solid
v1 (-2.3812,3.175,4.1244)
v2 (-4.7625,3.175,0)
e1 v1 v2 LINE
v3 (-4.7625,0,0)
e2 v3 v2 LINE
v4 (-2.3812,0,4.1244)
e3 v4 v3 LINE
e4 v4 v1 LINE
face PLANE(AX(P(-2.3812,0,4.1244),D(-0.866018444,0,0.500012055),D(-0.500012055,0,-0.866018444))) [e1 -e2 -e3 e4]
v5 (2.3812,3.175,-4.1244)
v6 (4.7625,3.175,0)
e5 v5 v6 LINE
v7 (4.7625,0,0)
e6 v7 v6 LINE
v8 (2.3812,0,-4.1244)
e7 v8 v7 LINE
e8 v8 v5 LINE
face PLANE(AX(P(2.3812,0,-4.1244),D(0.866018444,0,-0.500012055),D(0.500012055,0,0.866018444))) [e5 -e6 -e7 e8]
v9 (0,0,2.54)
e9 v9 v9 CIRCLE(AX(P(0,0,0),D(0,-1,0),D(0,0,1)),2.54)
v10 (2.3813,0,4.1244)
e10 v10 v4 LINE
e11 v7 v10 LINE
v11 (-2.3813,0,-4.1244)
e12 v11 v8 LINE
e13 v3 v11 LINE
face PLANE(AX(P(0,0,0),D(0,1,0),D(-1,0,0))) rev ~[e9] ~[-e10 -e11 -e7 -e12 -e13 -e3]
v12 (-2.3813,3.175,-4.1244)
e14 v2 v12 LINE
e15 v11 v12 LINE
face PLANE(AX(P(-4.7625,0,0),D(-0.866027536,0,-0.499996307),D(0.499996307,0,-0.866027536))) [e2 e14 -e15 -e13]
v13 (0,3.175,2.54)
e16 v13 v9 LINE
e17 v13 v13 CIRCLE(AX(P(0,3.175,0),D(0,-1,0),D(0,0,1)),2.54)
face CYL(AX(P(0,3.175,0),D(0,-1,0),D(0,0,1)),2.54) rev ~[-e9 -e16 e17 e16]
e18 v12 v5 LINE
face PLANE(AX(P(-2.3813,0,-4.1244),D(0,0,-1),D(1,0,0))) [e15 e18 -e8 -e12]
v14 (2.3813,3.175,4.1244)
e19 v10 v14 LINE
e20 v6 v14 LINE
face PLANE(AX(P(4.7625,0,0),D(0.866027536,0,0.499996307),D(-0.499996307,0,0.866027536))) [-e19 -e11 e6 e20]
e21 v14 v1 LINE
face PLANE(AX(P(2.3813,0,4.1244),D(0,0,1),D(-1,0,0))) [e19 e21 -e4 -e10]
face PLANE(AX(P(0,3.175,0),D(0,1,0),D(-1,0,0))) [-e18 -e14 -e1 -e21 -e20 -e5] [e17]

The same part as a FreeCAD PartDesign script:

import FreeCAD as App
import Part
import Sketcher

V = App.Vector
Q = App.Units.Quantity

doc = App.newDocument("Part")
params = doc.addObject("Spreadsheet::Sheet", "Params")
for row, (alias, value) in enumerate([
    ("sketch1_width", "0.1875 in"),
    ("sketch1_length", "0.1875 in"),
    ("pad1_length", "0.125 in"),
    ("sketch2_diameter", "0.2 in"),
    ("hole_diameter", "0.2 in"),
], start=1):
    params.set(f"A{row}", alias)
    params.set(f"B{row}", "=" + value)
    params.setAlias(f"B{row}", alias)

body = doc.addObject("PartDesign::Body", "Body")

# Sketch on XZ plane
sketch1 = body.newObject("Sketcher::SketchObject", "Sketch")
sketch1.AttachmentSupport = (doc.getObject("XZ_Plane"), [""])
sketch1.MapMode = "FlatFace"
sketch1.addGeometry(Part.LineSegment(V(-2.3813, -4.1244, 0), V(-4.7625, 0, 0)), False)
sketch1.addGeometry(Part.LineSegment(V(-4.7625, 0, 0), V(-2.3812, 4.1244, 0)), False)
sketch1.addGeometry(Part.LineSegment(V(-2.3812, 4.1244, 0), V(2.3813, 4.1244, 0)), False)
sketch1.addGeometry(Part.LineSegment(V(2.3813, 4.1244, 0), V(4.7625, 0, 0)), False)
sketch1.addGeometry(Part.LineSegment(V(4.7625, 0, 0), V(2.3812, -4.1244, 0)), False)
sketch1.addGeometry(Part.LineSegment(V(2.3812, -4.1244, 0), V(-2.3813, -4.1244, 0)), False)
sketch1.addConstraint(Sketcher.Constraint("Coincident", 0, 2, 1, 1))
sketch1.addConstraint(Sketcher.Constraint("Coincident", 1, 2, 2, 1))
sketch1.addConstraint(Sketcher.Constraint("Coincident", 2, 2, 3, 1))
sketch1.addConstraint(Sketcher.Constraint("Coincident", 3, 2, 4, 1))
sketch1.addConstraint(Sketcher.Constraint("Coincident", 4, 2, 5, 1))
sketch1.addConstraint(Sketcher.Constraint("Coincident", 5, 2, 0, 1))
sketch1.addConstraint(Sketcher.Constraint("Horizontal", 2))
sketch1.addConstraint(Sketcher.Constraint("Horizontal", 5))
sketch1.addConstraint(Sketcher.Constraint("Symmetric", 0, 2, 3, 2, -1, 1))
sketch1.addConstraint(Sketcher.Constraint("Symmetric", 1, 2, 4, 2, -1, 1))
sketch1.addConstraint(Sketcher.Constraint("PointOnObject", 0, 2, -1))
sketch1.addConstraint(Sketcher.Constraint("Parallel", 0, 3))
sketch1.addConstraint(Sketcher.Constraint("Vertical", 2, 2, 4, 2))
sketch1.addConstraint(Sketcher.Constraint("Angle", 0, Q("119.9998 deg")))
sketch1.addConstraint(Sketcher.Constraint("DistanceX", 2, 1, 2, 2, Q("0.1875 in")))
sketch1.addConstraint(Sketcher.Constraint("Distance", 0, Q("0.1875 in")))
sketch1.setExpression("Constraints[14]", "Params.sketch1_width")
sketch1.setExpression("Constraints[15]", "Params.sketch1_length")
pad1 = body.newObject("PartDesign::Pad", "Pad")
pad1.Profile = sketch1
pad1.setExpression("Length", "Params.pad1_length")
pad1.Reversed = True

# Sketch on XZ plane
sketch2 = body.newObject("Sketcher::SketchObject", "Sketch001")
sketch2.AttachmentSupport = (doc.getObject("XZ_Plane"), [""])
sketch2.MapMode = "FlatFace"
sketch2.AttachmentOffset = App.Placement(V(0, 0, -0.125 * 25.4), App.Rotation())
sketch2.addGeometry(Part.Circle(V(0, 0, 0), V(0, 0, 1), 2.54), False)
sketch2.addConstraint(Sketcher.Constraint("Coincident", 0, 3, -1, 1))
sketch2.addConstraint(Sketcher.Constraint("Diameter", 0, Q("0.2 in")))
sketch2.setExpression("Constraints[1]", "Params.sketch2_diameter")
doc.recompute()
hole = body.newObject("PartDesign::Hole", "Hole")
hole.Profile = sketch2
hole.ThreadType = "None"
hole.setExpression("Diameter", "Params.hole_diameter")
hole.DepthType = "ThroughAll"
hole.Reversed = True

doc.recompute()
